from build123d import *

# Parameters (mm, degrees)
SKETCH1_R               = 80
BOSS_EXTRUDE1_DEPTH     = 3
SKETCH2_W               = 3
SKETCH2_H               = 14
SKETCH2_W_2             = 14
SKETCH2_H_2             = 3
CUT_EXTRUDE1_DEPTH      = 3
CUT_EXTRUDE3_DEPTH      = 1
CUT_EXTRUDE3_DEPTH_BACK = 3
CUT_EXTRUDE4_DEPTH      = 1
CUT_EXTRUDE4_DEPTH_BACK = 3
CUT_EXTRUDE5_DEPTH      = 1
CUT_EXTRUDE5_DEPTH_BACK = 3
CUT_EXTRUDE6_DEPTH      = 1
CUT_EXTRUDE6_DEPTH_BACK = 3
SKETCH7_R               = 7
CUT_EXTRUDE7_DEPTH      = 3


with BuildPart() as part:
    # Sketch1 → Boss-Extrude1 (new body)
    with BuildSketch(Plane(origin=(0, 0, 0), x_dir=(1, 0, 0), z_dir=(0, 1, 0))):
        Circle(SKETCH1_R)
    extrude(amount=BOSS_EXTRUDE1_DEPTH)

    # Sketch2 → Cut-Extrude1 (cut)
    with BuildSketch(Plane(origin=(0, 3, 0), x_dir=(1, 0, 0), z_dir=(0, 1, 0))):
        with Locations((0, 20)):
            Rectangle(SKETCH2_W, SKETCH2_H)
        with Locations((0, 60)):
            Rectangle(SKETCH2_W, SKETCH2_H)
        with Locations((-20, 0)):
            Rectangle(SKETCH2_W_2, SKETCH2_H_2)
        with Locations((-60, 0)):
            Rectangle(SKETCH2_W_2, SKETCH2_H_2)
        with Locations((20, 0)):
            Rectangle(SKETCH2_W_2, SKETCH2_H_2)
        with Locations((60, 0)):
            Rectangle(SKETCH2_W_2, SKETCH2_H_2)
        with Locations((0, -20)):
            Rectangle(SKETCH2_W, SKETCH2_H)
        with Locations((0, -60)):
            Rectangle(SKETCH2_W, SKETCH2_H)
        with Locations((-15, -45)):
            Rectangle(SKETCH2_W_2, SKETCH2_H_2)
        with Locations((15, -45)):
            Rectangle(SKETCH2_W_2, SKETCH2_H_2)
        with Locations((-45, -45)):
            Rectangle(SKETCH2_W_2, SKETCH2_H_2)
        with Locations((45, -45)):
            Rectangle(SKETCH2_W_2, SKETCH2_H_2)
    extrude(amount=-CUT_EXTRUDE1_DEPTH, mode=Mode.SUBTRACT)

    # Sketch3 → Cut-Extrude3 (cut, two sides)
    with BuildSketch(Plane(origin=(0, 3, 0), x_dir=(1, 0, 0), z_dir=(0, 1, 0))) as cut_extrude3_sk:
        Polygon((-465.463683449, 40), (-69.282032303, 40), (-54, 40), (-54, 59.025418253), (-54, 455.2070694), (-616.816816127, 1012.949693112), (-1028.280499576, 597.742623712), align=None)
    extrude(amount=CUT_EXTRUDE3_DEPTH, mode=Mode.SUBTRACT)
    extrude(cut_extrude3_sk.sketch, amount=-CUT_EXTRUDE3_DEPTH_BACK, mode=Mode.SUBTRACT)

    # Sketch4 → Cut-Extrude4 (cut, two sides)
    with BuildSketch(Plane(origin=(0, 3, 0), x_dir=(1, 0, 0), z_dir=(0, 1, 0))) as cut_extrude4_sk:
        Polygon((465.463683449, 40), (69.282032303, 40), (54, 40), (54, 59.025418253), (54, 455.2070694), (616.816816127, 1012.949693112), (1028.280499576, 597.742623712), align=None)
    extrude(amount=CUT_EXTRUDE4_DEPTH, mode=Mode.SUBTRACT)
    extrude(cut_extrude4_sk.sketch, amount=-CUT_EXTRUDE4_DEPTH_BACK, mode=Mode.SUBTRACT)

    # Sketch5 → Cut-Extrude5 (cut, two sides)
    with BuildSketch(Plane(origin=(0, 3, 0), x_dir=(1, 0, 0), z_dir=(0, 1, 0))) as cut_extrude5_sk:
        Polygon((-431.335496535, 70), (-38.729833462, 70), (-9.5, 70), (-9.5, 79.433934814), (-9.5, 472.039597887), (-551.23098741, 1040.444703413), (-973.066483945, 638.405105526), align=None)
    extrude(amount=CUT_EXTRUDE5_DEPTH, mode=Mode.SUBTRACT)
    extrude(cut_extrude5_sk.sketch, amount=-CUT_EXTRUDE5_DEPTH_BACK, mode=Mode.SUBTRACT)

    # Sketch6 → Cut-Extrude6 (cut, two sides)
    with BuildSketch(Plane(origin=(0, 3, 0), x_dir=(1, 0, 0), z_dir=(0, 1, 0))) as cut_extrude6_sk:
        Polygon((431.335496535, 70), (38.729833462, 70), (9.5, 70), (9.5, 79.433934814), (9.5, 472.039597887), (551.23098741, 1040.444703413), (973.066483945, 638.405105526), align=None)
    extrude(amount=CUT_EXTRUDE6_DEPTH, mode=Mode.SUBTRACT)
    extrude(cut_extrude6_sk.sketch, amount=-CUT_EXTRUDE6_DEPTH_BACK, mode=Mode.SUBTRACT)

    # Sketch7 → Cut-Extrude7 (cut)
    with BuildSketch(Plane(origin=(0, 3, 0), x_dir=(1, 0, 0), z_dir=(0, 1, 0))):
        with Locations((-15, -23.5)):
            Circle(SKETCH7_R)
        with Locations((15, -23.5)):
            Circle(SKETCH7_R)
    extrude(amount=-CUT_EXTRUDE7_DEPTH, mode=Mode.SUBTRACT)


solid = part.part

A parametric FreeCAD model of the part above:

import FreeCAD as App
import Part
import Sketcher

doc = App.newDocument("Part")
params = doc.addObject("Spreadsheet::Sheet", "Params")
for row, (alias, value) in enumerate([
    ("sketch1_diameter", "160 mm"),
    ("pad1_length", "3 mm"),
    ("sketch2_width", "3 mm"),
    ("sketch2_width2", "14 mm"),
    ("pocket1_length", "3 mm"),
    ("sketch7_diameter", "14 mm"),
    ("pocket6_length", "3 mm"),
], start=1):
    params.set(f"A{row}", alias)
    params.set(f"B{row}", "=" + value)
    params.setAlias(f"B{row}", alias)

body = doc.addObject("PartDesign::Body", "Body")

sketch1 = doc.addObject("Sketcher::SketchObject", "Sketch")
body.addObject(sketch1)
sketch1.AttachmentSupport = (doc.XZ_Plane, [""])
sketch1.MapMode = "FlatFace"
sketch1.addGeometry(Part.Circle(App.Vector(0, 0, 0), App.Vector(0, 0, 1), 80), False)
sketch1.addConstraint([
    Sketcher.Constraint("Coincident", 0, 3, -1, 1),
    Sketcher.Constraint("Diameter", 0, 160.0),
])
sketch1.setExpression("Constraints[1]", "Params.sketch1_diameter")
pad1 = doc.addObject("PartDesign::Pad", "Pad")
body.addObject(pad1)
pad1.Profile = sketch1
pad1.setExpression("Length", "Params.pad1_length")
pad1.Reversed = True

sketch2 = doc.addObject("Sketcher::SketchObject", "Sketch001")
body.addObject(sketch2)
sketch2.AttachmentSupport = (doc.XZ_Plane, [""])
sketch2.MapMode = "FlatFace"
sketch2.AttachmentOffset = App.Placement(App.Vector(0, 0, -3), App.Rotation())
sketch2.addGeometry([
    Part.LineSegment(App.Vector(-1.5, -27, 0), App.Vector(-1.5, -13, 0)),
    Part.LineSegment(App.Vector(-1.5, -13, 0), App.Vector(1.5, -13, 0)),
    Part.LineSegment(App.Vector(1.5, -13, 0), App.Vector(1.5, -27, 0)),
    Part.LineSegment(App.Vector(1.5, -27, 0), App.Vector(-1.5, -27, 0)),
    Part.LineSegment(App.Vector(-1.5, -67, 0), App.Vector(-1.5, -53, 0)),
    Part.LineSegment(App.Vector(-1.5, -53, 0), App.Vector(1.5, -53, 0)),
    Part.LineSegment(App.Vector(1.5, -53, 0), App.Vector(1.5, -67, 0)),
    Part.LineSegment(App.Vector(1.5, -67, 0), App.Vector(-1.5, -67, 0)),
    Part.LineSegment(App.Vector(-27, -1.5, 0), App.Vector(-27, 1.5, 0)),
    Part.LineSegment(App.Vector(-27, 1.5, 0), App.Vector(-13, 1.5, 0)),
    Part.LineSegment(App.Vector(-13, 1.5, 0), App.Vector(-13, -1.5, 0)),
    Part.LineSegment(App.Vector(-13, -1.5, 0), App.Vector(-27, -1.5, 0)),
    Part.LineSegment(App.Vector(-67, -1.5, 0), App.Vector(-67, 1.5, 0)),
    Part.LineSegment(App.Vector(-67, 1.5, 0), App.Vector(-53, 1.5, 0)),
    Part.LineSegment(App.Vector(-53, 1.5, 0), App.Vector(-53, -1.5, 0)),
    Part.LineSegment(App.Vector(-53, -1.5, 0), App.Vector(-67, -1.5, 0)),
    Part.LineSegment(App.Vector(13, -1.5, 0), App.Vector(13, 1.5, 0)),
    Part.LineSegment(App.Vector(13, 1.5, 0), App.Vector(27, 1.5, 0)),
    Part.LineSegment(App.Vector(27, 1.5, 0), App.Vector(27, -1.5, 0)),
    Part.LineSegment(App.Vector(27, -1.5, 0), App.Vector(13, -1.5, 0)),
    Part.LineSegment(App.Vector(53, -1.5, 0), App.Vector(53, 1.5, 0)),
    Part.LineSegment(App.Vector(53, 1.5, 0), App.Vector(67, 1.5, 0)),
    Part.LineSegment(App.Vector(67, 1.5, 0), App.Vector(67, -1.5, 0)),
    Part.LineSegment(App.Vector(67, -1.5, 0), App.Vector(53, -1.5, 0)),
    Part.LineSegment(App.Vector(-1.5, 13, 0), App.Vector(-1.5, 27, 0)),
    Part.LineSegment(App.Vector(-1.5, 27, 0), App.Vector(1.5, 27, 0)),
    Part.LineSegment(App.Vector(1.5, 27, 0), App.Vector(1.5, 13, 0)),
    Part.LineSegment(App.Vector(1.5, 13, 0), App.Vector(-1.5, 13, 0)),
    Part.LineSegment(App.Vector(-1.5, 53, 0), App.Vector(-1.5, 67, 0)),
    Part.LineSegment(App.Vector(-1.5, 67, 0), App.Vector(1.5, 67, 0)),
    Part.LineSegment(App.Vector(1.5, 67, 0), App.Vector(1.5, 53, 0)),
    Part.LineSegment(App.Vector(1.5, 53, 0), App.Vector(-1.5, 53, 0)),
    Part.LineSegment(App.Vector(-22, 43.5, 0), App.Vector(-22, 46.5, 0)),
    Part.LineSegment(App.Vector(-22, 46.5, 0), App.Vector(-8, 46.5, 0)),
    Part.LineSegment(App.Vector(-8, 46.5, 0), App.Vector(-8, 43.5, 0)),
    Part.LineSegment(App.Vector(-8, 43.5, 0), App.Vector(-22, 43.5, 0)),
    Part.LineSegment(App.Vector(8, 43.5, 0), App.Vector(8, 46.5, 0)),
    Part.LineSegment(App.Vector(8, 46.5, 0), App.Vector(22, 46.5, 0)),
    Part.LineSegment(App.Vector(22, 46.5, 0), App.Vector(22, 43.5, 0)),
    Part.LineSegment(App.Vector(22, 43.5, 0), App.Vector(8, 43.5, 0)),
    Part.LineSegment(App.Vector(-52, 43.5, 0), App.Vector(-52, 46.5, 0)),
    Part.LineSegment(App.Vector(-52, 46.5, 0), App.Vector(-38, 46.5, 0)),
    Part.LineSegment(App.Vector(-38, 46.5, 0), App.Vector(-38, 43.5, 0)),
    Part.LineSegment(App.Vector(-38, 43.5, 0), App.Vector(-52, 43.5, 0)),
    Part.LineSegment(App.Vector(38, 43.5, 0), App.Vector(38, 46.5, 0)),
    Part.LineSegment(App.Vector(38, 46.5, 0), App.Vector(52, 46.5, 0)),
    Part.LineSegment(App.Vector(52, 46.5, 0), App.Vector(52, 43.5, 0)),
    Part.LineSegment(App.Vector(52, 43.5, 0), App.Vector(38, 43.5, 0)),
], False)
sketch2.addConstraint([
    Sketcher.Constraint("Coincident", 0, 2, 1, 1),
    Sketcher.Constraint("Coincident", 1, 2, 2, 1),
    Sketcher.Constraint("Coincident", 2, 2, 3, 1),
    Sketcher.Constraint("Coincident", 3, 2, 0, 1),
    Sketcher.Constraint("Coincident", 4, 2, 5, 1),
    Sketcher.Constraint("Coincident", 5, 2, 6, 1),
    Sketcher.Constraint("Coincident", 6, 2, 7, 1),
    Sketcher.Constraint("Coincident", 7, 2, 4, 1),
    Sketcher.Constraint("Coincident", 8, 2, 9, 1),
    Sketcher.Constraint("Coincident", 9, 2, 10, 1),
    Sketcher.Constraint("Coincident", 10, 2, 11, 1),
    Sketcher.Constraint("Coincident", 11, 2, 8, 1),
    Sketcher.Constraint("Coincident", 12, 2, 13, 1),
    Sketcher.Constraint("Coincident", 13, 2, 14, 1),
    Sketcher.Constraint("Coincident", 14, 2, 15, 1),
    Sketcher.Constraint("Coincident", 15, 2, 12, 1),
    Sketcher.Constraint("Coincident", 16, 2, 17, 1),
    Sketcher.Constraint("Coincident", 17, 2, 18, 1),
    Sketcher.Constraint("Coincident", 18, 2, 19, 1),
    Sketcher.Constraint("Coincident", 19, 2, 16, 1),
    Sketcher.Constraint("Coincident", 20, 2, 21, 1),
    Sketcher.Constraint("Coincident", 21, 2, 22, 1),
    Sketcher.Constraint("Coincident", 22, 2, 23, 1),
    Sketcher.Constraint("Coincident", 23, 2, 20, 1),
    Sketcher.Constraint("Coincident", 24, 2, 25, 1),
    Sketcher.Constraint("Coincident", 25, 2, 26, 1),
    Sketcher.Constraint("Coincident", 26, 2, 27, 1),
    Sketcher.Constraint("Coincident", 27, 2, 24, 1),
    Sketcher.Constraint("Coincident", 28, 2, 29, 1),
    Sketcher.Constraint("Coincident", 29, 2, 30, 1),
    Sketcher.Constraint("Coincident", 30, 2, 31, 1),
    Sketcher.Constraint("Coincident", 31, 2, 28, 1),
    Sketcher.Constraint("Coincident", 32, 2, 33, 1),
    Sketcher.Constraint("Coincident", 33, 2, 34, 1),
    Sketcher.Constraint("Coincident", 34, 2, 35, 1),
    Sketcher.Constraint("Coincident", 35, 2, 32, 1),
    Sketcher.Constraint("Coincident", 36, 2, 37, 1),
    Sketcher.Constraint("Coincident", 37, 2, 38, 1),
    Sketcher.Constraint("Coincident", 38, 2, 39, 1),
    Sketcher.Constraint("Coincident", 39, 2, 36, 1),
    Sketcher.Constraint("Coincident", 40, 2, 41, 1),
    Sketcher.Constraint("Coincident", 41, 2, 42, 1),
    Sketcher.Constraint("Coincident", 42, 2, 43, 1),
    Sketcher.Constraint("Coincident", 43, 2, 40, 1),
    Sketcher.Constraint("Coincident", 44, 2, 45, 1),
    Sketcher.Constraint("Coincident", 45, 2, 46, 1),
    Sketcher.Constraint("Coincident", 46, 2, 47, 1),
    Sketcher.Constraint("Coincident", 47, 2, 44, 1),
    Sketcher.Constraint("Vertical", 0),
    Sketcher.Constraint("Horizontal", 1),
    Sketcher.Constraint("Vertical", 2),
    Sketcher.Constraint("Horizontal", 3),
    Sketcher.Constraint("Vertical", 4),
    Sketcher.Constraint("Horizontal", 5),
    Sketcher.Constraint("Vertical", 6),
    Sketcher.Constraint("Horizontal", 7),
    Sketcher.Constraint("Vertical", 8),
    Sketcher.Constraint("Horizontal", 9),
    Sketcher.Constraint("Vertical", 10),
    Sketcher.Constraint("Horizontal", 11),
    Sketcher.Constraint("Vertical", 12),
    Sketcher.Constraint("Horizontal", 13),
    Sketcher.Constraint("Vertical", 14),
    Sketcher.Constraint("Horizontal", 15),
    Sketcher.Constraint("Vertical", 16),
    Sketcher.Constraint("Horizontal", 17),
    Sketcher.Constraint("Vertical", 18),
    Sketcher.Constraint("Horizontal", 19),
    Sketcher.Constraint("Vertical", 20),
    Sketcher.Constraint("Horizontal", 21),
    Sketcher.Constraint("Vertical", 22),
    Sketcher.Constraint("Horizontal", 23),
    Sketcher.Constraint("Vertical", 24),
    Sketcher.Constraint("Horizontal", 25),
    Sketcher.Constraint("Vertical", 26),
    Sketcher.Constraint("Horizontal", 27),
    Sketcher.Constraint("Vertical", 28),
    Sketcher.Constraint("Horizontal", 29),
    Sketcher.Constraint("Vertical", 30),
    Sketcher.Constraint("Horizontal", 31),
    Sketcher.Constraint("Vertical", 32),
    Sketcher.Constraint("Horizontal", 33),
    Sketcher.Constraint("Vertical", 34),
    Sketcher.Constraint("Horizontal", 35),
    Sketcher.Constraint("Vertical", 36),
    Sketcher.Constraint("Horizontal", 37),
    Sketcher.Constraint("Vertical", 38),
    Sketcher.Constraint("Horizontal", 39),
    Sketcher.Constraint("Vertical", 40),
    Sketcher.Constraint("Horizontal", 41),
    Sketcher.Constraint("Vertical", 42),
    Sketcher.Constraint("Horizontal", 43),
    Sketcher.Constraint("Vertical", 44),
    Sketcher.Constraint("Horizontal", 45),
    Sketcher.Constraint("Vertical", 46),
    Sketcher.Constraint("Horizontal", 47),
    Sketcher.Constraint("Symmetric", 10, 2, 16, 2, -1, 1),
    Sketcher.Constraint("Symmetric", 8, 2, 18, 2, -1, 1),
    Sketcher.Constraint("Symmetric", 14, 2, 20, 2, -1, 1),
    Sketcher.Constraint("Symmetric", 12, 2, 22, 2, -1, 1),
    Sketcher.Constraint("Symmetric", 2, 2, 24, 2, -1, 1),
    Sketcher.Constraint("Symmetric", 0, 2, 26, 2, -1, 1),
    Sketcher.Constraint("Symmetric", 6, 2, 28, 2, -1, 1),
    Sketcher.Constraint("Symmetric", 4, 2, 30, 2, -1, 1),
    Sketcher.Constraint("Symmetric", 33, 2, 36, 2, -2),
    Sketcher.Constraint("Symmetric", 35, 2, 38, 2, -2),
    Sketcher.Constraint("Symmetric", 41, 2, 44, 2, -2),
    Sketcher.Constraint("Symmetric", 43, 2, 46, 2, -2),
    Sketcher.Constraint("Horizontal", 9, 2, 12, 2),
    Sketcher.Constraint("Horizontal", 11, 2, 14, 2),
    Sketcher.Constraint("Horizontal", 13, 2, 16, 2),
    Sketcher.Constraint("Horizontal", 37, 2, 40, 2),
    Sketcher.Constraint("Horizontal", 39, 2, 42, 2),
    Sketcher.Constraint("Vertical", 3, 2, 4, 2),
    Sketcher.Constraint("Vertical", 2, 2, 5, 2),
    Sketcher.Constraint("Vertical", 7, 2, 24, 2),
    Sketcher.Constraint("Equal", 11, 13),
    Sketcher.Constraint("Equal", 23, 33),
    Sketcher.Constraint("Equal", 39, 41),
    Sketcher.Constraint("Equal", 47, 0),
    Sketcher.Constraint("Equal", 2, 4),
    Sketcher.Constraint("Equal", 31, 8),
    Sketcher.Constraint("Equal", 22, 32),
    Sketcher.Constraint("DistanceX", 1, 1, 1, 2, 3.0),
    Sketcher.Constraint("DistanceX", 9, 1, 9, 2, 14.0),
    Sketcher.Constraint("DistanceY", 0, 2, -1, 1, 13.0),
    Sketcher.Constraint("DistanceY", 4, 2, -1, 1, 53.0),
    Sketcher.Constraint("DistanceX", 8, 2, -1, 1, 27.0),
    Sketcher.Constraint("DistanceX", 12, 2, -1, 1, 67.0),
    Sketcher.Constraint("DistanceX", 32, 2, -1, 1, 22.0),
    Sketcher.Constraint("DistanceX", 40, 2, -1, 1, 52.0),
    Sketcher.Constraint("DistanceY", 13, 2, 40, 2, 45.0),
])
sketch2.setExpression("Constraints[123]", "Params.sketch2_width")
sketch2.setExpression("Constraints[124]", "Params.sketch2_width2")
pocket1 = doc.addObject("PartDesign::Pocket", "Pocket")
body.addObject(pocket1)
pocket1.Profile = sketch2
pocket1.setExpression("Length", "Params.pocket1_length")
pocket1.Reversed = True

sketch3 = doc.addObject("Sketcher::SketchObject", "Sketch002")
body.addObject(sketch3)
sketch3.AttachmentSupport = (doc.XZ_Plane, [""])
sketch3.MapMode = "FlatFace"
sketch3.AttachmentOffset = App.Placement(App.Vector(0, 0, -3), App.Rotation())
sketch3.addGeometry([
    Part.LineSegment(App.Vector(-465, -40, 0), App.Vector(-54, -40, 0)),
    Part.LineSegment(App.Vector(-54, -40, 0), App.Vector(-54, -455, 0)),
    Part.LineSegment(App.Vector(-54, -455, 0), App.Vector(-617, -1013, 0)),
    Part.LineSegment(App.Vector(-617, -1013, 0), App.Vector(-1028, -598, 0)),
    Part.LineSegment(App.Vector(-1028, -598, 0), App.Vector(-465, -40, 0)),
], False)
sketch3.addConstraint([
    Sketcher.Constraint("Coincident", 0, 2, 1, 1),
    Sketcher.Constraint("Coincident", 1, 2, 2, 1),
    Sketcher.Constraint("Coincident", 2, 2, 3, 1),
    Sketcher.Constraint("Coincident", 3, 2, 4, 1),
    Sketcher.Constraint("Coincident", 4, 2, 0, 1),
    Sketcher.Constraint("Horizontal", 0),
    Sketcher.Constraint("Vertical", 1),
    Sketcher.Constraint("Perpendicular", 2, 3),
    Sketcher.Constraint("Perpendicular", 3, 4),
    Sketcher.Constraint("Equal", 2, 4),
    Sketcher.Constraint("DistanceX", 0, 2, -1, 1, 54.0),
    Sketcher.Constraint("DistanceY", 0, 2, -1, 1, 40.0),
    Sketcher.Constraint("DistanceY", 1, 2, 1, 1, 415.207069),
    Sketcher.Constraint("DistanceX", 3, 2, -1, 1, 1028.2805),
    Sketcher.Constraint("Distance", 3, 584.550488),
])
pocket2 = doc.addObject("PartDesign::Pocket", "Pocket001")
body.addObject(pocket2)
pocket2.Profile = sketch3
pocket2.Type = "ThroughAll"
pocket2.Midplane = True

sketch4 = doc.addObject("Sketcher::SketchObject", "Sketch003")
body.addObject(sketch4)
sketch4.AttachmentSupport = (doc.XZ_Plane, [""])
sketch4.MapMode = "FlatFace"
sketch4.AttachmentOffset = App.Placement(App.Vector(0, 0, -3), App.Rotation())
sketch4.addGeometry([
    Part.LineSegment(App.Vector(54, -40, 0), App.Vector(465, -40, 0)),
    Part.LineSegment(App.Vector(465, -40, 0), App.Vector(1028, -598, 0)),
    Part.LineSegment(App.Vector(1028, -598, 0), App.Vector(617, -1013, 0)),
    Part.LineSegment(App.Vector(617, -1013, 0), App.Vector(54, -455, 0)),
    Part.LineSegment(App.Vector(54, -455, 0), App.Vector(54, -40, 0)),
], False)
sketch4.addConstraint([
    Sketcher.Constraint("Coincident", 0, 2, 1, 1),
    Sketcher.Constraint("Coincident", 1, 2, 2, 1),
    Sketcher.Constraint("Coincident", 2, 2, 3, 1),
    Sketcher.Constraint("Coincident", 3, 2, 4, 1),
    Sketcher.Constraint("Coincident", 4, 2, 0, 1),
    Sketcher.Constraint("Horizontal", 0),
    Sketcher.Constraint("Vertical", 4),
    Sketcher.Constraint("Perpendicular", 1, 2),
    Sketcher.Constraint("Perpendicular", 2, 3),
    Sketcher.Constraint("Equal", 1, 3),
    Sketcher.Constraint("DistanceY", 0, 2, -1, 1, 40.0),
    Sketcher.Constraint("DistanceX", -1, 1, 3, 2, 54.0),
    Sketcher.Constraint("DistanceY", 4, 1, 4, 2, 415.207069),
    Sketcher.Constraint("DistanceX", -1, 1, 1, 2, 1028.2805),
    Sketcher.Constraint("Distance", 2, 584.550488),
])
pocket3 = doc.addObject("PartDesign::Pocket", "Pocket002")
body.addObject(pocket3)
pocket3.Profile = sketch4
pocket3.Type = "ThroughAll"
pocket3.Midplane = True

sketch5 = doc.addObject("Sketcher::SketchObject", "Sketch004")
body.addObject(sketch5)
sketch5.AttachmentSupport = (doc.XZ_Plane, [""])
sketch5.MapMode = "FlatFace"
sketch5.AttachmentOffset = App.Placement(App.Vector(0, 0, -3), App.Rotation())
sketch5.addGeometry([
    Part.LineSegment(App.Vector(-431, -70, 0), App.Vector(-10, -70, 0)),
    Part.LineSegment(App.Vector(-10, -70, 0), App.Vector(-10, -472, 0)),
    Part.LineSegment(App.Vector(-10, -472, 0), App.Vector(-551, -1040, 0)),
    Part.LineSegment(App.Vector(-551, -1040, 0), App.Vector(-973, -638, 0)),
    Part.LineSegment(App.Vector(-973, -638, 0), App.Vector(-431, -70, 0)),
], False)
sketch5.addConstraint([
    Sketcher.Constraint("Coincident", 0, 2, 1, 1),
    Sketcher.Constraint("Coincident", 1, 2, 2, 1),
    Sketcher.Constraint("Coincident", 2, 2, 3, 1),
    Sketcher.Constraint("Coincident", 3, 2, 4, 1),
    Sketcher.Constraint("Coincident", 4, 2, 0, 1),
    Sketcher.Constraint("Horizontal", 0),
    Sketcher.Constraint("Vertical", 1),
    Sketcher.Constraint("Perpendicular", 2, 3),
    Sketcher.Constraint("Perpendicular", 3, 4),
    Sketcher.Constraint("Equal", 2, 4),
    Sketcher.Constraint("DistanceY", 0, 2, -1, 1, 70.0),
    Sketcher.Constraint("DistanceX", 0, 2, -1, 1, 9.5),
    Sketcher.Constraint("Distance", 3, 582.73581),
    Sketcher.Constraint("DistanceX", 0, 1, 0, 2, 421.835497),
    Sketcher.Constraint("DistanceX", 2, 2, 4, 2, 119.895491),
])
pocket4 = doc.addObject("PartDesign::Pocket", "Pocket003")
body.addObject(pocket4)
pocket4.Profile = sketch5
pocket4.Type = "ThroughAll"
pocket4.Midplane = True

sketch6 = doc.addObject("Sketcher::SketchObject", "Sketch005")
body.addObject(sketch6)
sketch6.AttachmentSupport = (doc.XZ_Plane, [""])
sketch6.MapMode = "FlatFace"
sketch6.AttachmentOffset = App.Placement(App.Vector(0, 0, -3), App.Rotation())
sketch6.addGeometry([
    Part.LineSegment(App.Vector(10, -70, 0), App.Vector(431, -70, 0)),
    Part.LineSegment(App.Vector(431, -70, 0), App.Vector(973, -638, 0)),
    Part.LineSegment(App.Vector(973, -638, 0), App.Vector(551, -1040, 0)),
    Part.LineSegment(App.Vector(551, -1040, 0), App.Vector(10, -472, 0)),
    Part.LineSegment(App.Vector(10, -472, 0), App.Vector(10, -70, 0)),
], False)
sketch6.addConstraint([
    Sketcher.Constraint("Coincident", 0, 2, 1, 1),
    Sketcher.Constraint("Coincident", 1, 2, 2, 1),
    Sketcher.Constraint("Coincident", 2, 2, 3, 1),
    Sketcher.Constraint("Coincident", 3, 2, 4, 1),
    Sketcher.Constraint("Coincident", 4, 2, 0, 1),
    Sketcher.Constraint("Horizontal", 0),
    Sketcher.Constraint("Vertical", 4),
    Sketcher.Constraint("Perpendicular", 1, 2),
    Sketcher.Constraint("Perpendicular", 2, 3),
    Sketcher.Constraint("Equal", 1, 3),
    Sketcher.Constraint("DistanceY", 0, 2, -1, 1, 70.0),
    Sketcher.Constraint("DistanceX", -1, 1, 3, 2, 9.5),
    Sketcher.Constraint("Distance", 2, 582.73581),
    Sketcher.Constraint("DistanceX", 0, 1, 0, 2, 421.835497),
    Sketcher.Constraint("DistanceX", 0, 2, 2, 2, 119.895491),
])
pocket5 = doc.addObject("PartDesign::Pocket", "Pocket004")
body.addObject(pocket5)
pocket5.Profile = sketch6
pocket5.Type = "ThroughAll"
pocket5.Midplane = True

sketch7 = doc.addObject("Sketcher::SketchObject", "Sketch006")
body.addObject(sketch7)
sketch7.AttachmentSupport = (doc.XZ_Plane, [""])
sketch7.MapMode = "FlatFace"
sketch7.AttachmentOffset = App.Placement(App.Vector(0, 0, -3), App.Rotation())
sketch7.addGeometry([
    Part.Circle(App.Vector(-15, 24, 0), App.Vector(0, 0, 1), 7),
    Part.Circle(App.Vector(15, 24, 0), App.Vector(0, 0, 1), 7),
], False)
sketch7.addConstraint([
    Sketcher.Constraint("Equal", 0, 1),
    Sketcher.Constraint("Symmetric", 0, 3, 1, 3, -2),
    Sketcher.Constraint("Diameter", 0, 14.0),
    Sketcher.Constraint("DistanceX", 0, 3, -1, 1, 15.0),
    Sketcher.Constraint("DistanceY", -1, 1, 0, 3, 23.5),
])
sketch7.setExpression("Constraints[2]", "Params.sketch7_diameter")
pocket6 = doc.addObject("PartDesign::Pocket", "Pocket005")
body.addObject(pocket6)
pocket6.Profile = sketch7
pocket6.setExpression("Length", "Params.pocket6_length")
pocket6.Reversed = True

doc.recompute()
